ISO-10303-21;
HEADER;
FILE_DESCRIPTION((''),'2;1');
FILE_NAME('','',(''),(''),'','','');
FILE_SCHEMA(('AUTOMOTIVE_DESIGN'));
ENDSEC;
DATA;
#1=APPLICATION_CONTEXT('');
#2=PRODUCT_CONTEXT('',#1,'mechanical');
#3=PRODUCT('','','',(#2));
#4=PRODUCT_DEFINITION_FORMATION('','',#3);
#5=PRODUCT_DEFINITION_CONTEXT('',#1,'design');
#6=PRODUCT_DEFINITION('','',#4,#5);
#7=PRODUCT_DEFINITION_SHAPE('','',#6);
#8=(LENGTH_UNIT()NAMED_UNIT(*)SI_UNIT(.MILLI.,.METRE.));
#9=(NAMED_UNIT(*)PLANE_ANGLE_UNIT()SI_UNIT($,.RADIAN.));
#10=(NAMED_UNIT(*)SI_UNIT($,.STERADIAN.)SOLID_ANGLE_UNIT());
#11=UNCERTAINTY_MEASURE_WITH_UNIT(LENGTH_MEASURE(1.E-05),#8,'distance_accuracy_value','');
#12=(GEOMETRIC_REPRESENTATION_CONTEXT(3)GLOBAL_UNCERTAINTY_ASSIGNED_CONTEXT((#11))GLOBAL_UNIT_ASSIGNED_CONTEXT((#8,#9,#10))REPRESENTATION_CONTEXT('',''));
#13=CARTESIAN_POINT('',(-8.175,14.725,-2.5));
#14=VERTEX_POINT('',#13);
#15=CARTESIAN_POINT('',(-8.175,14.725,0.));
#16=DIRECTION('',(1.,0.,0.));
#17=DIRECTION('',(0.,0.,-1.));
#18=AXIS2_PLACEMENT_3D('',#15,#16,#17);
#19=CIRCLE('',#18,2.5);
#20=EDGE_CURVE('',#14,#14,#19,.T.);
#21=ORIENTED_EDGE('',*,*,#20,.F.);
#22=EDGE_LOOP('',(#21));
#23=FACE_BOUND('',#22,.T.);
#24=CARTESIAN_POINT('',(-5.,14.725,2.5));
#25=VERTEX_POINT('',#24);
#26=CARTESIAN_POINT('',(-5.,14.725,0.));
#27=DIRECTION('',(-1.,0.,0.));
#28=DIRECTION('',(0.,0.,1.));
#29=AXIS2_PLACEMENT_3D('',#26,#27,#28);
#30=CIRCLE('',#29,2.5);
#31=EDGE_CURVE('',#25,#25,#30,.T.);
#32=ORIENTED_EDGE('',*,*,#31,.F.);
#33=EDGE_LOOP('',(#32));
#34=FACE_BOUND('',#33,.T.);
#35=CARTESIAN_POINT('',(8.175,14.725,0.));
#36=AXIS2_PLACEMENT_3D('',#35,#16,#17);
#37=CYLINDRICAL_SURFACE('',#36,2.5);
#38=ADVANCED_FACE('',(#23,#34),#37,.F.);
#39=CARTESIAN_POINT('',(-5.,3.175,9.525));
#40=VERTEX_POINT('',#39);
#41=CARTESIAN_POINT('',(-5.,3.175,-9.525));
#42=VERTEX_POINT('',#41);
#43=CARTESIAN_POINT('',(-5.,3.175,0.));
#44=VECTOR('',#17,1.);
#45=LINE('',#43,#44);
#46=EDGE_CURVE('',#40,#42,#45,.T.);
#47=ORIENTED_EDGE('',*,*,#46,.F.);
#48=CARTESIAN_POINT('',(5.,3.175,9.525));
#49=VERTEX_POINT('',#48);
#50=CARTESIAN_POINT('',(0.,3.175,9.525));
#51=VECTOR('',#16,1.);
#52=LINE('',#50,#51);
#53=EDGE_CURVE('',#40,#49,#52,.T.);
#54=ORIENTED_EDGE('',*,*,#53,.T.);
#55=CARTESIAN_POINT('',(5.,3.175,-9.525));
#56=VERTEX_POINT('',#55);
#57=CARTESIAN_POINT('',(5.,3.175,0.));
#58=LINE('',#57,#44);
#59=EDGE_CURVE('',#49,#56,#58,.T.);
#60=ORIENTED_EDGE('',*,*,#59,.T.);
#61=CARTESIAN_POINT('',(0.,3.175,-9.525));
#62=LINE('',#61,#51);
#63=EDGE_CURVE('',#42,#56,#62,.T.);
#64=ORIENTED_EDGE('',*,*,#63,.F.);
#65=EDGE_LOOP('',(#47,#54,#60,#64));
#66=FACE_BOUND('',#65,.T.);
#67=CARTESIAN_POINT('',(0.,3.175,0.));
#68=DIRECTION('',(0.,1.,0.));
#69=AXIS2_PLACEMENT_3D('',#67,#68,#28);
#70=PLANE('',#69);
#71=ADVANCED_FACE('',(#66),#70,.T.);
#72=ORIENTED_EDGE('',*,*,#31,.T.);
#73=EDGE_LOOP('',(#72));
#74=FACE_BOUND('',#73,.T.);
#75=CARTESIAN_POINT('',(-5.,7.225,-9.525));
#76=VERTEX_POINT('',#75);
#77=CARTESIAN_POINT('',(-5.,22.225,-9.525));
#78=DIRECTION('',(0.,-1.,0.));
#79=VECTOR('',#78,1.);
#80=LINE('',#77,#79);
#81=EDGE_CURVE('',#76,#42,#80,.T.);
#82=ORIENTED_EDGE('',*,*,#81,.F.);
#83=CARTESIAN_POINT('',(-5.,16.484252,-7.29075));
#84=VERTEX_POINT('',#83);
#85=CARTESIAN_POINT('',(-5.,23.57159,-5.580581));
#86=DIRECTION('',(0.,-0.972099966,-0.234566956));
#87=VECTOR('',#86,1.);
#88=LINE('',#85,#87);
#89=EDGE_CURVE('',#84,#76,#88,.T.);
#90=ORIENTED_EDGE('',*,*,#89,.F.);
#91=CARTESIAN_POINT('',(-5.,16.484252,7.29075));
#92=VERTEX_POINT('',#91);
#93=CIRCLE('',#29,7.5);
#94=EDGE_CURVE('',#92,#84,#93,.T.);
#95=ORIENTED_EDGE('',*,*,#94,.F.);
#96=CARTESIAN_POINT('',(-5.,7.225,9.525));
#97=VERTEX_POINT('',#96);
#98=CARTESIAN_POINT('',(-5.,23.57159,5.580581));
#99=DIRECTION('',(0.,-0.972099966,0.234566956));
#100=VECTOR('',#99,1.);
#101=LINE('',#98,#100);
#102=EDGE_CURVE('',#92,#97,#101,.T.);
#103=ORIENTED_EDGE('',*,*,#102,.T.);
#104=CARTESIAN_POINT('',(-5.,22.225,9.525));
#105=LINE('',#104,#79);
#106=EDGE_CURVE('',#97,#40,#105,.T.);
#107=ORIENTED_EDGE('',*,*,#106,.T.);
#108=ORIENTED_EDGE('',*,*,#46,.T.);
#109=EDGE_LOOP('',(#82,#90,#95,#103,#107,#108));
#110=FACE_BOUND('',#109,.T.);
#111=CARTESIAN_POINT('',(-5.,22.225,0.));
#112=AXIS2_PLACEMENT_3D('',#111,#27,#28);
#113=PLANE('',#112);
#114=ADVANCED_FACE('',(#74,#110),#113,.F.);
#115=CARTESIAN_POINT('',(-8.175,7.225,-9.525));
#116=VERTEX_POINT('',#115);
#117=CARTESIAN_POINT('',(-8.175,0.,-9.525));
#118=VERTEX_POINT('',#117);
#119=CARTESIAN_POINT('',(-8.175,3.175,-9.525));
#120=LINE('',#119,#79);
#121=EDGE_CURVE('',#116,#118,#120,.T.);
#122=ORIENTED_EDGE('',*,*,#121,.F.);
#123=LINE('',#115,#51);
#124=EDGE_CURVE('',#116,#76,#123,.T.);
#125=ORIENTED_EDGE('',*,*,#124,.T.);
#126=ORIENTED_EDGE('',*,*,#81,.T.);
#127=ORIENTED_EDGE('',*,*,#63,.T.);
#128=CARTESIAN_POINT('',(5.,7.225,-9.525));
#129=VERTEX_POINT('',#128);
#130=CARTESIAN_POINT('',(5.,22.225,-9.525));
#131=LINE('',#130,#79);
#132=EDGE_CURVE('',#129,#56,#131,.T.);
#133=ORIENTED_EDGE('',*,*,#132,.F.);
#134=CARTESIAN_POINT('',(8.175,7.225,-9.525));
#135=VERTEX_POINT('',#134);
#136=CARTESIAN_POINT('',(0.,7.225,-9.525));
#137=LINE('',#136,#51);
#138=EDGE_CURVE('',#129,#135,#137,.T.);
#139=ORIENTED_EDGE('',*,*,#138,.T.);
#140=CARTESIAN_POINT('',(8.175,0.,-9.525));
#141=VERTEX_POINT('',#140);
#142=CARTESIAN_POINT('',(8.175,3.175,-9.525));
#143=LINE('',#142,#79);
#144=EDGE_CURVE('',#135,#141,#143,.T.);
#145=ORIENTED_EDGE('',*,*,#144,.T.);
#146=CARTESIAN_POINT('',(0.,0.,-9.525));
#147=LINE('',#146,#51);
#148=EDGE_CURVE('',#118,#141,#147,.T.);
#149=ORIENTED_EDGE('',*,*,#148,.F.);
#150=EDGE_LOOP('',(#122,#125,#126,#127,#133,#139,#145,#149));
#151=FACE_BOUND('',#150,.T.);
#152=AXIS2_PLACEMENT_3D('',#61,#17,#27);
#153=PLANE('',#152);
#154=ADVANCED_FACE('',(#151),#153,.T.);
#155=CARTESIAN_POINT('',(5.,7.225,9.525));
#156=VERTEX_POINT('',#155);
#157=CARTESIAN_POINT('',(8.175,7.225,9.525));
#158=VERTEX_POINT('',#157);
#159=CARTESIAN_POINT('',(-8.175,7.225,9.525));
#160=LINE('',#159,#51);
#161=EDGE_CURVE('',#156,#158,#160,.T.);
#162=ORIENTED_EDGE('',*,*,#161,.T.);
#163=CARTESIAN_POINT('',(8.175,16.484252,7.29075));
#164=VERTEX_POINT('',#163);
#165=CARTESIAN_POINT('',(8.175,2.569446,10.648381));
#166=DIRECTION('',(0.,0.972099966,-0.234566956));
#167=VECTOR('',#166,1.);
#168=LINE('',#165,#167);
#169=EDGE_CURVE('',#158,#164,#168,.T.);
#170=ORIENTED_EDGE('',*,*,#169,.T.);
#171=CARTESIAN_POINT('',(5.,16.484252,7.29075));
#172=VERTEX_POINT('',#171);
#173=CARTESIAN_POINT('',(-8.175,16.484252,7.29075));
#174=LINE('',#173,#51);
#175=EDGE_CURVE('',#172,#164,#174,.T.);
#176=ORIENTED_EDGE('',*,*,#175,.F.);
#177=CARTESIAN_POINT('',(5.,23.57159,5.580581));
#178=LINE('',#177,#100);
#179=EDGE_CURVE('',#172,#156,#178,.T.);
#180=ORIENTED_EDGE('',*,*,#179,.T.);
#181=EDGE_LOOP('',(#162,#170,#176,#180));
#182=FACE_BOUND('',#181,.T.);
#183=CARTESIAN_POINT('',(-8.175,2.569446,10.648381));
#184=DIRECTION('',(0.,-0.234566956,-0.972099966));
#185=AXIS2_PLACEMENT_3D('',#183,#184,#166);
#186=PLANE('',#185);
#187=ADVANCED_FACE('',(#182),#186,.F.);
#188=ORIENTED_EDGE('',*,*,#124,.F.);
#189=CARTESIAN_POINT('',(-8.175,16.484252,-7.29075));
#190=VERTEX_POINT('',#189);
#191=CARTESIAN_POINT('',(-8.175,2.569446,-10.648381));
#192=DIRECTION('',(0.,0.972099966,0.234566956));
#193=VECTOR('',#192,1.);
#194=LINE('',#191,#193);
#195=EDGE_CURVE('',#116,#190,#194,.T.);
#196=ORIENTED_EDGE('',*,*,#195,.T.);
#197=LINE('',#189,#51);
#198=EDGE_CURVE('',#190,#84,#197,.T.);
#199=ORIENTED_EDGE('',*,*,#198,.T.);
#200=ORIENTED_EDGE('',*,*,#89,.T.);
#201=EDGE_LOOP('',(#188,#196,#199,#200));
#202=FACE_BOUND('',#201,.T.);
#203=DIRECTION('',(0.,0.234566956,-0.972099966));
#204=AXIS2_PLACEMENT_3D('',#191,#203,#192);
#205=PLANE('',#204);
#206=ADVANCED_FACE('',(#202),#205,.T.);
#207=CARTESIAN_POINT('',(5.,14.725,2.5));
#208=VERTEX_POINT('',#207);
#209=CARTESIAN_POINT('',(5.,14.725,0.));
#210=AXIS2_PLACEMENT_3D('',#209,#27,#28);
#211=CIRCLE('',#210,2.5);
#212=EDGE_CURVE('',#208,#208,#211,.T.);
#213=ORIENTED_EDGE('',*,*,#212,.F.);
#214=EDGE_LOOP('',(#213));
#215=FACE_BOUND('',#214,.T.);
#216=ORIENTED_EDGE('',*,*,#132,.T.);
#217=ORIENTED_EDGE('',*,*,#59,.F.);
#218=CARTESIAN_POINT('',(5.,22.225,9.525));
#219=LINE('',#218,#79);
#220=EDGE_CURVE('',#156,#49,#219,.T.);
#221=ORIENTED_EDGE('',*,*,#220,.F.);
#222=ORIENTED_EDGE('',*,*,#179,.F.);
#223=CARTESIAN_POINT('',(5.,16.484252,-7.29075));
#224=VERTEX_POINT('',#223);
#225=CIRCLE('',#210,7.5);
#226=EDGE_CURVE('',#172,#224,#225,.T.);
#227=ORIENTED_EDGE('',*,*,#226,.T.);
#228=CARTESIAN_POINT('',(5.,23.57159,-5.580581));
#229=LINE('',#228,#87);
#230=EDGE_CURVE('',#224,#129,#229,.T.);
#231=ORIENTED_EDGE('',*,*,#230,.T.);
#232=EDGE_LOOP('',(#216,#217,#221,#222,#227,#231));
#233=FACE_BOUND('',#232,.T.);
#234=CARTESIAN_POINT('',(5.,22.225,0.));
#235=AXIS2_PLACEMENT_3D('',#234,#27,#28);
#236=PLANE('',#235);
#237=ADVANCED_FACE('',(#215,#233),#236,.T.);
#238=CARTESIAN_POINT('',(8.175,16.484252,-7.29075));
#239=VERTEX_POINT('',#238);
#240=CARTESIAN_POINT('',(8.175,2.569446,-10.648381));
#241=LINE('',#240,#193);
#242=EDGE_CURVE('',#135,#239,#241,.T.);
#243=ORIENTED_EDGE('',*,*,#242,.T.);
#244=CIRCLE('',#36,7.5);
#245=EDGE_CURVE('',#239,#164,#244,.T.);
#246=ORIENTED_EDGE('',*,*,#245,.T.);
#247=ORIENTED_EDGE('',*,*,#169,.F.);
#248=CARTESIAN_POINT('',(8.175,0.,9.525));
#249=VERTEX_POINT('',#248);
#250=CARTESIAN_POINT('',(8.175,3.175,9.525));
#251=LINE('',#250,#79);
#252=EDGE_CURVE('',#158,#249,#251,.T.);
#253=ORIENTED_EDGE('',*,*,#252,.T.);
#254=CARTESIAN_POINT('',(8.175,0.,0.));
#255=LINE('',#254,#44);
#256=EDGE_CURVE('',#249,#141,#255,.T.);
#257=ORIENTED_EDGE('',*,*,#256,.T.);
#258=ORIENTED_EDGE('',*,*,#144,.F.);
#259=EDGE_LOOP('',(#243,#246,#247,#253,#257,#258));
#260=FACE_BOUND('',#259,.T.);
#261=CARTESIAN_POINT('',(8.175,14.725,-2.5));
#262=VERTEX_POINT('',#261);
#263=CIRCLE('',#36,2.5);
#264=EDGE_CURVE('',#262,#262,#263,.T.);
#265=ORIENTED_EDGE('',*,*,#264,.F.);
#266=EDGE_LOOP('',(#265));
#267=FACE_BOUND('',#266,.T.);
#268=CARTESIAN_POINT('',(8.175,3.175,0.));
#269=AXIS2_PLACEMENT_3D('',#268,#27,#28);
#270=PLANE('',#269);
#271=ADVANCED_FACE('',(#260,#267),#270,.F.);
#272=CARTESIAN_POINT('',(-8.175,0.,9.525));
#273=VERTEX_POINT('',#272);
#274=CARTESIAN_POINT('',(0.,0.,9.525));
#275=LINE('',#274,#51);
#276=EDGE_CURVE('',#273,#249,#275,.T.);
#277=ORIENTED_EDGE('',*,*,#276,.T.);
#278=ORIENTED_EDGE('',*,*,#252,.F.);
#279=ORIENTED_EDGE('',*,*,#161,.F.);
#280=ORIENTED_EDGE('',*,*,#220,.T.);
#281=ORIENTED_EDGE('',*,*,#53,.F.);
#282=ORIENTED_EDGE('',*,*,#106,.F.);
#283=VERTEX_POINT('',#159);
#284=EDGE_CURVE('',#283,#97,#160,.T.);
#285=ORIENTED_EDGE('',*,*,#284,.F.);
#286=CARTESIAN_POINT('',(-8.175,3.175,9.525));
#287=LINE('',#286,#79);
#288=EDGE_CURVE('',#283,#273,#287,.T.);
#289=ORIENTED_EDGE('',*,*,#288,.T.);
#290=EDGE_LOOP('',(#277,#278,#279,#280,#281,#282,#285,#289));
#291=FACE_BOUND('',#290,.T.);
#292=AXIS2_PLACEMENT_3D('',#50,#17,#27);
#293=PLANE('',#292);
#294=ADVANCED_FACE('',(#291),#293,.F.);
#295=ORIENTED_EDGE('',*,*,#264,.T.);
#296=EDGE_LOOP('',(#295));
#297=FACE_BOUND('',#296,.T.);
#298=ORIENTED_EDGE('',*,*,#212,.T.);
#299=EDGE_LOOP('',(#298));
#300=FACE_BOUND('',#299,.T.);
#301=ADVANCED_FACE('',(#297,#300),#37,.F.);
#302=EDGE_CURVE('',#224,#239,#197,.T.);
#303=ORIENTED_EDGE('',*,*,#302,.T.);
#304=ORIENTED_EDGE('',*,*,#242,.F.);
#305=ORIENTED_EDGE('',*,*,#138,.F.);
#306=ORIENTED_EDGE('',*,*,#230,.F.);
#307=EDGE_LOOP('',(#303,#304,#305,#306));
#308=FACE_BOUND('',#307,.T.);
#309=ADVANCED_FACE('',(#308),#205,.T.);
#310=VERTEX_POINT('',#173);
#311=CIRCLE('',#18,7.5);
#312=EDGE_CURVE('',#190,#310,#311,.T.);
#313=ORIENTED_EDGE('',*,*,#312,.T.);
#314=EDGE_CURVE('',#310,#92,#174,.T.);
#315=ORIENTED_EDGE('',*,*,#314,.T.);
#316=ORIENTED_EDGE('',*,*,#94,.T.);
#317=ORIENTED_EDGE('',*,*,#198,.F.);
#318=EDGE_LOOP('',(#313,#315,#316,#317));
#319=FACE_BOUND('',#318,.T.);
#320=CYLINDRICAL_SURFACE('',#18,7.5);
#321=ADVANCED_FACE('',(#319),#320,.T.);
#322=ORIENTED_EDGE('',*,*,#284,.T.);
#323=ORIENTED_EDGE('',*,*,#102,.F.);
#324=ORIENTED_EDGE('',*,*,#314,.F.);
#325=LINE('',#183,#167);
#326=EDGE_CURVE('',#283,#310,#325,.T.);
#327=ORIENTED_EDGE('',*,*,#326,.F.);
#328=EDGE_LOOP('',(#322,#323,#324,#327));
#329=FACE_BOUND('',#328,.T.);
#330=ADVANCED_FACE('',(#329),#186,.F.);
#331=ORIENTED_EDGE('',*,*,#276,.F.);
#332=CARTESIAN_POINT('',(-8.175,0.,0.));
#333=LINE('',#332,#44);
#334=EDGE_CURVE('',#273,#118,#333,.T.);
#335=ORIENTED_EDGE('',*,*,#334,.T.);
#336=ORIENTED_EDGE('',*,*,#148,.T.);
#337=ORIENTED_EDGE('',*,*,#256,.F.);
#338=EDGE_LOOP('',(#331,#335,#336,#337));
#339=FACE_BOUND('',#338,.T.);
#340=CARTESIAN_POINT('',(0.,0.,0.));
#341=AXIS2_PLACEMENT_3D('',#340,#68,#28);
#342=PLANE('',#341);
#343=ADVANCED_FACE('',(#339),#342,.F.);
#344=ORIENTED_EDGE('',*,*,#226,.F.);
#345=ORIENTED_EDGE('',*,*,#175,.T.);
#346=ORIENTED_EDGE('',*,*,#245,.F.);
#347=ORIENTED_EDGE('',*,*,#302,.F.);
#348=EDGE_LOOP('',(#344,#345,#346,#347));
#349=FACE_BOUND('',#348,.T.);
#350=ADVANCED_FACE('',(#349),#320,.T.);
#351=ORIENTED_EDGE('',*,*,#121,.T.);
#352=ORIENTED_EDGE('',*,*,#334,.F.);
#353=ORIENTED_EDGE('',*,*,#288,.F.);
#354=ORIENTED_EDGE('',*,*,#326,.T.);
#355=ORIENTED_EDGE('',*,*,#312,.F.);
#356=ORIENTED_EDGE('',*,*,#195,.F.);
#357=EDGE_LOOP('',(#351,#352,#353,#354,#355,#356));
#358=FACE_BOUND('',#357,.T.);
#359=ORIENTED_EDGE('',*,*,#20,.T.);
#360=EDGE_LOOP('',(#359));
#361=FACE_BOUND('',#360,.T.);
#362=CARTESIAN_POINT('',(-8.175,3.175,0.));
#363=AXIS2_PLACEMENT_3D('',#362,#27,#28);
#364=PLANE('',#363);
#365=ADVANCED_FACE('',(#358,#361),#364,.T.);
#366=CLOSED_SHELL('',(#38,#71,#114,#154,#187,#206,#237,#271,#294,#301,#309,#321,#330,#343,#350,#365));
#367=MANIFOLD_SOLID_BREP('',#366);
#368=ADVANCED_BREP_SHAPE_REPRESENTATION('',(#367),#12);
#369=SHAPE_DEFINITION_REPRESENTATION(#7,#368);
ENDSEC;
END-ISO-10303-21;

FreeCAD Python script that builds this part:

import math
import FreeCAD as App
import Part
import Sketcher
Q = App.Units.Quantity

doc = App.newDocument("Part")
body = doc.addObject("PartDesign::Body", "Body")

# Sketch on XZ plane
sketch1 = body.newObject("Sketcher::SketchObject", "Sketch")
sketch1.AttachmentSupport = (doc.getObject("XZ_Plane"), [""])
sketch1.MapMode = "FlatFace"
sketch1.addGeometry([
    Part.LineSegment(App.Vector(-8, -10, 0), App.Vector(-8, 10, 0)),
    Part.LineSegment(App.Vector(-8, 10, 0), App.Vector(8, 10, 0)),
    Part.LineSegment(App.Vector(8, 10, 0), App.Vector(8, -10, 0)),
    Part.LineSegment(App.Vector(8, -10, 0), App.Vector(-8, -10, 0)),
], False)
sketch1.addConstraint([
    Sketcher.Constraint("Coincident", 0, 2, 1, 1),
    Sketcher.Constraint("Coincident", 1, 2, 2, 1),
    Sketcher.Constraint("Coincident", 2, 2, 3, 1),
    Sketcher.Constraint("Coincident", 3, 2, 0, 1),
    Sketcher.Constraint("Vertical", 0),
    Sketcher.Constraint("Horizontal", 1),
    Sketcher.Constraint("Vertical", 2),
    Sketcher.Constraint("Horizontal", 3),
    Sketcher.Constraint("Symmetric", 0, 2, 2, 2, -1, 1),
    Sketcher.Constraint("DistanceY", 0, 1, 0, 2, Q("0.75 in")),
    Sketcher.Constraint("DistanceX", 1, 1, 1, 2, Q("16.35 mm")),
])
pad1 = body.newObject("PartDesign::Pad", "Pad")
pad1.Profile = sketch1
pad1.Length = Q("0.125 in")
pad1.Reversed = True

# Sketch on XZ plane
sketch2 = body.newObject("Sketcher::SketchObject", "Sketch001")
sketch2.AttachmentSupport = (doc.getObject("XZ_Plane"), [""])
sketch2.MapMode = "FlatFace"
sketch2.AttachmentOffset = App.Placement(App.Vector(0, 0, -0.125 * 25.4), App.Rotation())
sketch2.addGeometry([
    Part.LineSegment(App.Vector(-8.2, -9.5, 0), App.Vector(-8.2, 9.5, 0)),  # 0
    Part.LineSegment(App.Vector(-8.2, 9.5, 0), App.Vector(-5, 9.5, 0)),  # 1
    Part.LineSegment(App.Vector(-5, 9.5, 0), App.Vector(-5, -9.5, 0)),  # 2
    Part.LineSegment(App.Vector(-5, -9.5, 0), App.Vector(-8.2, -9.5, 0)),  # 3
    Part.LineSegment(App.Vector(5, -9.5, 0), App.Vector(5, 9.5, 0)),  # 4
    Part.LineSegment(App.Vector(5, 9.5, 0), App.Vector(8.2, 9.5, 0)),  # 5
    Part.LineSegment(App.Vector(8.2, 9.5, 0), App.Vector(8.2, -9.5, 0)),  # 6
    Part.LineSegment(App.Vector(8.2, -9.5, 0), App.Vector(5, -9.5, 0)),  # 7
], False)
sketch2.addConstraint([
    Sketcher.Constraint("Coincident", 0, 2, 1, 1),
    Sketcher.Constraint("Coincident", 1, 2, 2, 1),
    Sketcher.Constraint("Coincident", 2, 2, 3, 1),
    Sketcher.Constraint("Coincident", 3, 2, 0, 1),
    Sketcher.Constraint("Coincident", 4, 2, 5, 1),
    Sketcher.Constraint("Coincident", 5, 2, 6, 1),
    Sketcher.Constraint("Coincident", 6, 2, 7, 1),
    Sketcher.Constraint("Coincident", 7, 2, 4, 1),
    Sketcher.Constraint("Vertical", 0),
    Sketcher.Constraint("Horizontal", 1),
    Sketcher.Constraint("Vertical", 2),
    Sketcher.Constraint("Horizontal", 3),
    Sketcher.Constraint("Vertical", 4),
    Sketcher.Constraint("Horizontal", 5),
    Sketcher.Constraint("Vertical", 6),
    Sketcher.Constraint("Horizontal", 7),
    Sketcher.Constraint("Symmetric", 2, 2, 4, 2, -1, 1),
    Sketcher.Constraint("Symmetric", 0, 2, 6, 2, -1, 1),
    Sketcher.Constraint("Horizontal", 1, 2, 4, 2),
    Sketcher.Constraint("DistanceY", 0, 1, 0, 2, Q("0.75 in")),
    Sketcher.Constraint("DistanceX", 1, 1, 1, 2, Q("0.125 in")),
    Sketcher.Constraint("DistanceX", 0, 2, -1, 1, Q("8.175 mm")),
])
pad2 = body.newObject("PartDesign::Pad", "Pad001")
pad2.Profile = sketch2
pad2.Length = Q("0.75 in")
pad2.Reversed = True

# Sketch on YZ plane
sketch3 = body.newObject("Sketcher::SketchObject", "Sketch002")
sketch3.AttachmentSupport = (doc.getObject("YZ_Plane"), [""])
sketch3.MapMode = "FlatFace"
sketch3.AttachmentOffset = App.Placement(App.Vector(0, 0, 8.175), App.Rotation())
sketch3.addGeometry([
    Part.LineSegment(App.Vector(22, 10, 0), App.Vector(7, 10, 0)),  # 0
    Part.LineSegment(App.Vector(7, 10, 0), App.Vector(16, 7, 0)),  # 1
    Part.ArcOfCircle(Part.Circle(App.Vector(15, 0, 0), App.Vector(0, 0, 1), 7), math.radians(0), math.radians(76)),  # 2
    Part.LineSegment(App.Vector(22, 0, 0), App.Vector(22, 10, 0)),  # 3
    Part.LineSegment(App.Vector(22, -10, 0), App.Vector(22, 0, 0)),  # 4
    Part.ArcOfCircle(Part.Circle(App.Vector(15, 0, 0), App.Vector(0, 0, 1), 7), math.radians(-76), math.radians(0)),  # 5
    Part.LineSegment(App.Vector(16, -7, 0), App.Vector(7, -10, 0)),  # 6
    Part.LineSegment(App.Vector(7, -10, 0), App.Vector(22, -10, 0)),  # 7
], False)
sketch3.addConstraint([
    Sketcher.Constraint("Coincident", 0, 2, 1, 1),
    Sketcher.Constraint("Tangent", 1, 2, 2, 2),
    Sketcher.Constraint("Tangent", 2, 1, 3, 1),
    Sketcher.Constraint("Coincident", 3, 2, 0, 1),
    Sketcher.Constraint("Tangent", 4, 2, 5, 2),
    Sketcher.Constraint("Tangent", 5, 1, 6, 1),
    Sketcher.Constraint("Coincident", 6, 2, 7, 1),
    Sketcher.Constraint("Coincident", 7, 2, 4, 1),
    Sketcher.Constraint("Horizontal", 0),
    Sketcher.Constraint("Vertical", 3),
    Sketcher.Constraint("Vertical", 4),
    Sketcher.Constraint("Horizontal", 7),
    Sketcher.Constraint("Coincident", 5, 3, 2, 3),
    Sketcher.Constraint("Equal", 2, 5),
    Sketcher.Constraint("Symmetric", 1, 2, 5, 1, -1),
    Sketcher.Constraint("Vertical", 0, 2, 6, 2),
    Sketcher.Constraint("DistanceY", 3, 1, 3, 2, Q("0.375 in")),
    Sketcher.Constraint("Radius", 2, Q("7.5 mm")),
    Sketcher.Constraint("Distance", 1, Q("0.375 in")),
    Sketcher.Constraint("DistanceX", -1, 1, 2, 1, Q("0.875 in")),
])
pocket1 = body.newObject("PartDesign::Pocket", "Pocket")
pocket1.Profile = sketch3
pocket1.Type = "ThroughAll"

# Sketch on YZ plane
sketch4 = body.newObject("Sketcher::SketchObject", "Sketch003")
sketch4.AttachmentSupport = (doc.getObject("YZ_Plane"), [""])
sketch4.MapMode = "FlatFace"
sketch4.AttachmentOffset = App.Placement(App.Vector(0, 0, 8.175), App.Rotation())
sketch4.addGeometry(Part.Circle(App.Vector(14.7, 0, 0), App.Vector(0, 0, 1), 2.5), False)
sketch4.addConstraint([
    Sketcher.Constraint("PointOnObject", 0, 3, -1),
    Sketcher.Constraint("Diameter", 0, Q("5 mm")),
    Sketcher.Constraint("DistanceX", -1, 1, 0, 3, Q("14.725 mm")),
])
doc.recompute()
hole = body.newObject("PartDesign::Hole", "Hole")
hole.Profile = sketch4
hole.ThreadType = "None"
hole.Diameter = 5
hole.DepthType = "ThroughAll"

doc.recompute()
